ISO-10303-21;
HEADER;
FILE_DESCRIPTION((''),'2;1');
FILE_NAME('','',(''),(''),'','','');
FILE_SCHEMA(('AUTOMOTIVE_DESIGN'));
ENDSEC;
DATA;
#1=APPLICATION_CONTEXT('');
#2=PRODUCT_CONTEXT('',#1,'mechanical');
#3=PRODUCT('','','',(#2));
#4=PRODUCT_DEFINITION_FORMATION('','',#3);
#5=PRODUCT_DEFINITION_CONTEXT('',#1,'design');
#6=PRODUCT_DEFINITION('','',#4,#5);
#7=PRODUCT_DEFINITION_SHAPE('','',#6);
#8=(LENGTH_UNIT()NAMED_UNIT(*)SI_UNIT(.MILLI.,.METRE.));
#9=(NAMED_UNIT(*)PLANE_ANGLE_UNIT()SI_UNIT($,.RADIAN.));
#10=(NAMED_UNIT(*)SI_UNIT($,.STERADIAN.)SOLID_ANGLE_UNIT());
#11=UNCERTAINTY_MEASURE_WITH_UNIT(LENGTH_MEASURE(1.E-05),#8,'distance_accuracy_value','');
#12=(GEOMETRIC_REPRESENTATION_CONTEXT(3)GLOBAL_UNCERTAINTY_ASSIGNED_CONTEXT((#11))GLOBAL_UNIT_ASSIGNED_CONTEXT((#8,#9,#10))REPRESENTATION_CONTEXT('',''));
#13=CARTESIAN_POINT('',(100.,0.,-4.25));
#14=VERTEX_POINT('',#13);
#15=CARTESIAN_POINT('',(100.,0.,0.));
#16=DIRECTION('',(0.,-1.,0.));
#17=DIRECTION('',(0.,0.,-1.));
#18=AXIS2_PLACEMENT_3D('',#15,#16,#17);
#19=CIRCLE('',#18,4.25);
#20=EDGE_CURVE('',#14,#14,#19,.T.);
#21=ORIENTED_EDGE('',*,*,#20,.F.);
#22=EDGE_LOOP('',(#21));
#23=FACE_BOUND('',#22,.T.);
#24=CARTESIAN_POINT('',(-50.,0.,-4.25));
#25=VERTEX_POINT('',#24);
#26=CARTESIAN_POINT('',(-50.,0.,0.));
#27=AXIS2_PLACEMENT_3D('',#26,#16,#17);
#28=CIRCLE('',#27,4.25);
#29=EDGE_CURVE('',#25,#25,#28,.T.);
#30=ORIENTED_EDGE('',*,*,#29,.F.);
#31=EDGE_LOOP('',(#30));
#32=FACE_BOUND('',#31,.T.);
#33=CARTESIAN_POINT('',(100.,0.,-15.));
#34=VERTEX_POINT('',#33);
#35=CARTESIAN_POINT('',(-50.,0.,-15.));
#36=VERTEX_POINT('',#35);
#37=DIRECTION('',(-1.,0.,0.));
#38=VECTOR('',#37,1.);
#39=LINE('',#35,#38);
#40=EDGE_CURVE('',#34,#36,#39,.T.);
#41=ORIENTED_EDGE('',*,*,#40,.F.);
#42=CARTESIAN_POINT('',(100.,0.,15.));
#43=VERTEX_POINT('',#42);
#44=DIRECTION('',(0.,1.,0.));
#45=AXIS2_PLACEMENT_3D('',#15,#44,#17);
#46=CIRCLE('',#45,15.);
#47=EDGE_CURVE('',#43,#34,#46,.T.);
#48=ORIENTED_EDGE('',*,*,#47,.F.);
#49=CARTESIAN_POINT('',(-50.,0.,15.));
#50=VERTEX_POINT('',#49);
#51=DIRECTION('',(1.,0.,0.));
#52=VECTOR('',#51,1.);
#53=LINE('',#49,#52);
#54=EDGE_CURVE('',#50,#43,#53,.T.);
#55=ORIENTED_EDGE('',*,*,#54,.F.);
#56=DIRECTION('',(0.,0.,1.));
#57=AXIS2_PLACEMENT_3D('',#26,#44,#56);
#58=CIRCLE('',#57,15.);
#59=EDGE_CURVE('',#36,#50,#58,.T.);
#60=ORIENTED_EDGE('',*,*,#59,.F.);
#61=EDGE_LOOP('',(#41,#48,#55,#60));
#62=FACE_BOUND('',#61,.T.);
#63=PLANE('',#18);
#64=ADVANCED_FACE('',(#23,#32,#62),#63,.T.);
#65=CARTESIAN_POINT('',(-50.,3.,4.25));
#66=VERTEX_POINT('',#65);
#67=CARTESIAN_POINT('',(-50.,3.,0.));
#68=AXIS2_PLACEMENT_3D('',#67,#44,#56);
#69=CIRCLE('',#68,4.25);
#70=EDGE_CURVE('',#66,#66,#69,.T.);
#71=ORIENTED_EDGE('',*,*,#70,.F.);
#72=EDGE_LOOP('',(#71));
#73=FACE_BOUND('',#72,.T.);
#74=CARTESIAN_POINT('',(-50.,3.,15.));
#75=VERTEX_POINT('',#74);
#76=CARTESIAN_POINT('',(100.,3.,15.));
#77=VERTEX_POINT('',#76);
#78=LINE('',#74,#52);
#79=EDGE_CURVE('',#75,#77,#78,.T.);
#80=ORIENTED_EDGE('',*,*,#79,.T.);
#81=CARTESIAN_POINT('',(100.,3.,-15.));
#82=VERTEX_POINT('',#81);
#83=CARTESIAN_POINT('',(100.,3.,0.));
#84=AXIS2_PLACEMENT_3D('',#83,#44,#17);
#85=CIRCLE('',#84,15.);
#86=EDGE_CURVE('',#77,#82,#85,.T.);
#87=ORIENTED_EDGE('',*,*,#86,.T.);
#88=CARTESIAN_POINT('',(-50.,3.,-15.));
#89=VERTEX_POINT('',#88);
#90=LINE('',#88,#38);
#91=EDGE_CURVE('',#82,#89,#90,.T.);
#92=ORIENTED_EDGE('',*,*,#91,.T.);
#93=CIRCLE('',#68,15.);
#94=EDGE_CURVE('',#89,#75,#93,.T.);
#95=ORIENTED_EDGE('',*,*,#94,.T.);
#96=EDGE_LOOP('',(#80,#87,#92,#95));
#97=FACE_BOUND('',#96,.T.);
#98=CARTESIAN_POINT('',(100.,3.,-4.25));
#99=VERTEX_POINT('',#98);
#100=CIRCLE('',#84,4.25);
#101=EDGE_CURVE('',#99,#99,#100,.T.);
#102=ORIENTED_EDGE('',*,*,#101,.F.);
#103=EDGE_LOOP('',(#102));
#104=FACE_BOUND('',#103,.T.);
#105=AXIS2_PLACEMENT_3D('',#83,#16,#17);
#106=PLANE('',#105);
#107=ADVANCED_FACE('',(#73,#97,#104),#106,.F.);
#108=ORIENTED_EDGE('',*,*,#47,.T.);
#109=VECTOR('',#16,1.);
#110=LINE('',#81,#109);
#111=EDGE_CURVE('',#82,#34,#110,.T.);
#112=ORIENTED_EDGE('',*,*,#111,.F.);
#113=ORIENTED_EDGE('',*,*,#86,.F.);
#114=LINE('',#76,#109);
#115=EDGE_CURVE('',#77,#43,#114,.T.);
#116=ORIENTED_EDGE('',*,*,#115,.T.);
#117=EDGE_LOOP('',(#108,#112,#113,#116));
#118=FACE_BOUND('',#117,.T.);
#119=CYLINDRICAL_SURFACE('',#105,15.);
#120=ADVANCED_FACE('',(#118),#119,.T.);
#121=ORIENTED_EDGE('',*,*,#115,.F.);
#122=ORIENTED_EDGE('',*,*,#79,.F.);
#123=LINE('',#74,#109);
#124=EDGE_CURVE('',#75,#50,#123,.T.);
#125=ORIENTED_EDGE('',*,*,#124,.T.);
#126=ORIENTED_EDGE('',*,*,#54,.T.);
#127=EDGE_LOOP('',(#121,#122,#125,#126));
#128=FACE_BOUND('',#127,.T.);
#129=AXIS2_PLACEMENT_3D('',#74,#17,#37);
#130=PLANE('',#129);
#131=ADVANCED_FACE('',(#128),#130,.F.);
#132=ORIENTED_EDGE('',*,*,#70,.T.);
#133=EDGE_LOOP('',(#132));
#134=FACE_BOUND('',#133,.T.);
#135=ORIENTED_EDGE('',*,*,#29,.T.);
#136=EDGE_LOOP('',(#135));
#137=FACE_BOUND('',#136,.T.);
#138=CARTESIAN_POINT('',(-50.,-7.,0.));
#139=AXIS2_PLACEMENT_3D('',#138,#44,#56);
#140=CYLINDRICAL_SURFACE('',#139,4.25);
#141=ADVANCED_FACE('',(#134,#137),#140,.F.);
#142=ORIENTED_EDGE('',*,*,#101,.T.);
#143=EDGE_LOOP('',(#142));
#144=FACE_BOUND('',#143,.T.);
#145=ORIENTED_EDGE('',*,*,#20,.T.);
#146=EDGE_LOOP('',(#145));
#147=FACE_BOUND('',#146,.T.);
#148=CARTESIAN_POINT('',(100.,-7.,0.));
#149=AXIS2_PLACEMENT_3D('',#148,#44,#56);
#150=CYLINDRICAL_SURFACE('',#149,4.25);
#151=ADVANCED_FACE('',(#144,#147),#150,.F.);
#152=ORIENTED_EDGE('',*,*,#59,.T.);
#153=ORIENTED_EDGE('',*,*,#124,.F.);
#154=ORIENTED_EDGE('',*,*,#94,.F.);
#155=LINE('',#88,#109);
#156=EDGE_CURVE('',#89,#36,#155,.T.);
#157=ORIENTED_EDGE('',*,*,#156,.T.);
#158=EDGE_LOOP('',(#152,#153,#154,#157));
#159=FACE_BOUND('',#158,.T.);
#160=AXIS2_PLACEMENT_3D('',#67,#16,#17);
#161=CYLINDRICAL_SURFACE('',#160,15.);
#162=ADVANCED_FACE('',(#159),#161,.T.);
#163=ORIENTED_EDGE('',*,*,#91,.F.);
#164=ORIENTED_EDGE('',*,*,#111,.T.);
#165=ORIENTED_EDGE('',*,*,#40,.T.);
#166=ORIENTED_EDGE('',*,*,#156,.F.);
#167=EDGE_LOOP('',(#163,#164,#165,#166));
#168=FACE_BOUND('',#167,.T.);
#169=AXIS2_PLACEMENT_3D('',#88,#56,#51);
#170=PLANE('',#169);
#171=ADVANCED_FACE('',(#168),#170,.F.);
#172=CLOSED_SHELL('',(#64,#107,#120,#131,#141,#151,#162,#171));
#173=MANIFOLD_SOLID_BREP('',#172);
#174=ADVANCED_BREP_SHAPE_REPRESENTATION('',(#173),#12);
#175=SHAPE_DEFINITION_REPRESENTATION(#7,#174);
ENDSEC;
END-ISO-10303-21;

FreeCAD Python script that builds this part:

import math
import FreeCAD as App
import Part
import Sketcher
from FreeCAD import Vector

doc = App.newDocument("Part")
body = doc.addObject("PartDesign::Body", "Body")

sketch1 = body.newObject("Sketcher::SketchObject", "Sketch")
sketch1.AttachmentSupport = (doc.getObject("XZ_Plane"), [""])
sketch1.MapMode = "FlatFace"
sketch1.addGeometry(Part.LineSegment(Vector(100, -15, 0), Vector(-50, -15, 0)), False)
sketch1.addGeometry(Part.ArcOfCircle(Part.Circle(Vector(-50, 0, 0), Vector(0, 0, 1), 15), math.radians(90), math.radians(270)), False)
sketch1.addGeometry(Part.LineSegment(Vector(-50, 15, 0), Vector(100, 15, 0)), False)
sketch1.addGeometry(Part.ArcOfCircle(Part.Circle(Vector(100, 0, 0), Vector(0, 0, 1), 15), math.radians(-90), math.radians(90)), False)
sketch1.addConstraint(Sketcher.Constraint("Tangent", 0, 2, 1, 2))
sketch1.addConstraint(Sketcher.Constraint("Tangent", 1, 1, 2, 1))
sketch1.addConstraint(Sketcher.Constraint("Tangent", 2, 2, 3, 2))
sketch1.addConstraint(Sketcher.Constraint("Tangent", 3, 1, 0, 1))
sketch1.addConstraint(Sketcher.Constraint("Horizontal", 0))
sketch1.addConstraint(Sketcher.Constraint("Horizontal", 2))
sketch1.addConstraint(Sketcher.Constraint("PointOnObject", 1, 3, -1))
sketch1.addConstraint(Sketcher.Constraint("Radius", 1, 15.0))
sketch1.addConstraint(Sketcher.Constraint("DistanceX", 0, 2, 0, 1, 150.0))
sketch1.addConstraint(Sketcher.Constraint("DistanceX", 1, 3, -1, 1, 50.0))
pad1 = body.newObject("PartDesign::Pad", "Pad")
pad1.Profile = sketch1
pad1.Length = 3
pad1.Reversed = True

sketch2 = body.newObject("Sketcher::SketchObject", "Sketch001")
sketch2.AttachmentSupport = (doc.getObject("XZ_Plane"), [""])
sketch2.MapMode = "FlatFace"
sketch2.AttachmentOffset = App.Placement(Vector(0, 0, -3), App.Rotation())
sketch2.addGeometry(Part.Circle(Vector(-50, 0, 0), Vector(0, 0, 1), 4.2), False)
sketch2.addGeometry(Part.Circle(Vector(100, 0, 0), Vector(0, 0, 1), 4.2), False)
sketch2.addConstraint(Sketcher.Constraint("Equal", 0, 1))
sketch2.addConstraint(Sketcher.Constraint("PointOnObject", 0, 3, -1))
sketch2.addConstraint(Sketcher.Constraint("PointOnObject", 1, 3, -1))
sketch2.addConstraint(Sketcher.Constraint("Diameter", 0, 8.5))
sketch2.addConstraint(Sketcher.Constraint("DistanceX", 0, 3, -1, 1, 50.0))
sketch2.addConstraint(Sketcher.Constraint("DistanceX", -1, 1, 1, 3, 100.0))
pocket1 = body.newObject("PartDesign::Pocket", "Pocket")
pocket1.Profile = sketch2
pocket1.Length = 10
pocket1.Reversed = True

doc.recompute()
